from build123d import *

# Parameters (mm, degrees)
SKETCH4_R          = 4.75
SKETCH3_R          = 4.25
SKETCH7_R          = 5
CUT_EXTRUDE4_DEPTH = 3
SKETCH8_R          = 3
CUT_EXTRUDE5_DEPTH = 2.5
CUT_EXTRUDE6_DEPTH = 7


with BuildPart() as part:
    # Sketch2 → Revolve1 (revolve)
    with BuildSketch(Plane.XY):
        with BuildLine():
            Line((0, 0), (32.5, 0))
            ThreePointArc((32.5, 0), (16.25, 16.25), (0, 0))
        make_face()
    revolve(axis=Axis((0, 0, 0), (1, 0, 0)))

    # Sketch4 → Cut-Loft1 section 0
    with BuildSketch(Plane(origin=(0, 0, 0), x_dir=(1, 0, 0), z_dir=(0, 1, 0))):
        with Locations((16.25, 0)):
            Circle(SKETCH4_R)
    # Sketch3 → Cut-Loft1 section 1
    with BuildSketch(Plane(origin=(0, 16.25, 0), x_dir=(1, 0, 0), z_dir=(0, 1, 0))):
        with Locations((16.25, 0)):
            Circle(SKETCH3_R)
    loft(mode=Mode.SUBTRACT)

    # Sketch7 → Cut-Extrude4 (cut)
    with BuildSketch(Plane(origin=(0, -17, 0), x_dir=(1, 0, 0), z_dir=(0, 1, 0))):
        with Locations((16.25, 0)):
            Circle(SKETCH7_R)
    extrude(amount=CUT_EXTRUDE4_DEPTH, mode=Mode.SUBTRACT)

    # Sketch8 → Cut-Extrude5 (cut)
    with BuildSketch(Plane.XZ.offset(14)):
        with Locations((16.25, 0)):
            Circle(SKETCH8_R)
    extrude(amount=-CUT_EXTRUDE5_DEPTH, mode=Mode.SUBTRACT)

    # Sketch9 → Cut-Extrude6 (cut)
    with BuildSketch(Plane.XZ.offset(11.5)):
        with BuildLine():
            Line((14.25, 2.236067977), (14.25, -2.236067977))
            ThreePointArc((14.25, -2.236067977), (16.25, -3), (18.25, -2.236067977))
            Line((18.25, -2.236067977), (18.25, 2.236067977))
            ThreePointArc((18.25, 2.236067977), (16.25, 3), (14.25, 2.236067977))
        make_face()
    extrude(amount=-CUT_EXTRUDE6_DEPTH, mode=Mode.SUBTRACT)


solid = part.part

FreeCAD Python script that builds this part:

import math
import FreeCAD as App
import Part
import Sketcher
from FreeCAD import Vector

doc = App.newDocument("Part")
params = doc.addObject("Spreadsheet::Sheet", "Params")
for row, (alias, value) in enumerate([
    ("sketch1_radius", "16.25 mm"),
    ("revolution_angle", "360 deg"),
    ("sketch2_diameter", "9.5 mm"),
    ("sketch3_diameter", "8.5 mm"),
    ("sketch4_diameter", "10 mm"),
    ("pocket1_length", "3 mm"),
    ("sketch5_diameter", "6 mm"),
    ("pocket2_length", "2.5 mm"),
    ("sketch6_radius", "3 mm"),
    ("pocket3_length", "7 mm"),
], start=1):
    params.set(f"A{row}", alias)
    params.set(f"B{row}", "=" + value)
    params.setAlias(f"B{row}", alias)

body = doc.addObject("PartDesign::Body", "Body")

# Sketch on XY plane
sketch1 = body.newObject("Sketcher::SketchObject", "Sketch")
sketch1.AttachmentSupport = (doc.getObject("XY_Plane"), [""])
sketch1.MapMode = "FlatFace"
sketch1.addGeometry(Part.LineSegment(Vector(0, 0, 0), Vector(32.5, 0, 0)), False)
sketch1.addGeometry(Part.ArcOfCircle(Part.Circle(Vector(16.25, 0, 0), Vector(0, 0, 1), 16.25), math.radians(0), math.radians(180)), False)
sketch1.addConstraint(Sketcher.Constraint("Coincident", 0, 1, 1, 2))
sketch1.addConstraint(Sketcher.Constraint("Coincident", 1, 1, 0, 2))
sketch1.addConstraint(Sketcher.Constraint("Horizontal", 0))
sketch1.addConstraint(Sketcher.Constraint("Coincident", 0, 1, -1, 1))
sketch1.addConstraint(Sketcher.Constraint("PointOnObject", 1, 3, -1))
sketch1.addConstraint(Sketcher.Constraint("Radius", 1, 16.25))
sketch1.setExpression("Constraints[5]", "Params.sketch1_radius")
revolution = body.newObject("PartDesign::Revolution", "Revolution")
revolution.Profile = sketch1
revolution.ReferenceAxis = (sketch1, ["H_Axis"])
revolution.setExpression("Angle", "Params.revolution_angle")

# Sketch on XZ plane
sketch2 = body.newObject("Sketcher::SketchObject", "Sketch001")
sketch2.AttachmentSupport = (doc.getObject("XZ_Plane"), [""])
sketch2.MapMode = "FlatFace"
sketch2.addGeometry(Part.Circle(Vector(16.25, 0, 0), Vector(0, 0, 1), 4.75), False)
sketch2.addConstraint(Sketcher.Constraint("PointOnObject", 0, 3, -1))
sketch2.addConstraint(Sketcher.Constraint("Diameter", 0, 9.5))
sketch2.addConstraint(Sketcher.Constraint("DistanceX", -1, 1, 0, 3, 16.25))
sketch2.setExpression("Constraints[1]", "Params.sketch2_diameter")

# Sketch on XZ plane
sketch3 = body.newObject("Sketcher::SketchObject", "Sketch002")
sketch3.AttachmentSupport = (doc.getObject("XZ_Plane"), [""])
sketch3.MapMode = "FlatFace"
sketch3.AttachmentOffset = App.Placement(Vector(0, 0, -16.25), App.Rotation())
sketch3.addGeometry(Part.Circle(Vector(16.25, 0, 0), Vector(0, 0, 1), 4.25), False)
sketch3.addConstraint(Sketcher.Constraint("PointOnObject", 0, 3, -1))
sketch3.addConstraint(Sketcher.Constraint("Diameter", 0, 8.5))
sketch3.addConstraint(Sketcher.Constraint("DistanceX", -1, 1, 0, 3, 16.25))
sketch3.setExpression("Constraints[1]", "Params.sketch3_diameter")

subtractiveloft = body.newObject("PartDesign::SubtractiveLoft", "SubtractiveLoft")
subtractiveloft.Profile = sketch2
subtractiveloft.Sections = [sketch3]

# Sketch on XZ plane
sketch4 = body.newObject("Sketcher::SketchObject", "Sketch003")
sketch4.AttachmentSupport = (doc.getObject("XZ_Plane"), [""])
sketch4.MapMode = "FlatFace"
sketch4.AttachmentOffset = App.Placement(Vector(0, 0, 17), App.Rotation())
sketch4.addGeometry(Part.Circle(Vector(16.25, 0, 0), Vector(0, 0, 1), 5), False)
sketch4.addConstraint(Sketcher.Constraint("PointOnObject", 0, 3, -1))
sketch4.addConstraint(Sketcher.Constraint("Diameter", 0, 10.0))
sketch4.addConstraint(Sketcher.Constraint("DistanceX", -1, 1, 0, 3, 16.25))
sketch4.setExpression("Constraints[1]", "Params.sketch4_diameter")
pocket1 = body.newObject("PartDesign::Pocket", "Pocket")
pocket1.Profile = sketch4
pocket1.setExpression("Length", "Params.pocket1_length")

# Sketch on XZ plane
sketch5 = body.newObject("Sketcher::SketchObject", "Sketch004")
sketch5.AttachmentSupport = (doc.getObject("XZ_Plane"), [""])
sketch5.MapMode = "FlatFace"
sketch5.AttachmentOffset = App.Placement(Vector(0, 0, 14), App.Rotation())
sketch5.addGeometry(Part.Circle(Vector(16.25, 0, 0), Vector(0, 0, 1), 3), False)
sketch5.addConstraint(Sketcher.Constraint("PointOnObject", 0, 3, -1))
sketch5.addConstraint(Sketcher.Constraint("Diameter", 0, 6.0))
sketch5.addConstraint(Sketcher.Constraint("DistanceX", -1, 1, 0, 3, 16.25))
sketch5.setExpression("Constraints[1]", "Params.sketch5_diameter")
pocket2 = body.newObject("PartDesign::Pocket", "Pocket001")
pocket2.Profile = sketch5
pocket2.setExpression("Length", "Params.pocket2_length")

# Sketch on XZ plane
sketch6 = body.newObject("Sketcher::SketchObject", "Sketch005")
sketch6.AttachmentSupport = (doc.getObject("XZ_Plane"), [""])
sketch6.MapMode = "FlatFace"
sketch6.AttachmentOffset = App.Placement(Vector(0, 0, 11.5), App.Rotation())
sketch6.addGeometry(Part.LineSegment(Vector(14.25, 2.236068, 0), Vector(14.25, -2.236068, 0)), False)
sketch6.addGeometry(Part.ArcOfCircle(Part.Circle(Vector(16.25, 0, 0), Vector(0, 0, 1), 3), math.radians(-131.810315), math.radians(-48.189685)), False)
sketch6.addGeometry(Part.LineSegment(Vector(18.25, -2.236068, 0), Vector(18.25, 2.236068, 0)), False)
sketch6.addGeometry(Part.ArcOfCircle(Part.Circle(Vector(16.25, 0, 0), Vector(0, 0, 1), 3), math.radians(48.189685), math.radians(131.810315)), False)
sketch6.addConstraint(Sketcher.Constraint("Coincident", 0, 2, 1, 1))
sketch6.addConstraint(Sketcher.Constraint("Coincident", 1, 2, 2, 1))
sketch6.addConstraint(Sketcher.Constraint("Coincident", 2, 2, 3, 1))
sketch6.addConstraint(Sketcher.Constraint("Coincident", 3, 2, 0, 1))
sketch6.addConstraint(Sketcher.Constraint("Vertical", 0))
sketch6.addConstraint(Sketcher.Constraint("Vertical", 2))
sketch6.addConstraint(Sketcher.Constraint("Coincident", 3, 3, 1, 3))
sketch6.addConstraint(Sketcher.Constraint("Equal", 1, 3))
sketch6.addConstraint(Sketcher.Constraint("PointOnObject", 1, 3, -1))
sketch6.addConstraint(Sketcher.Constraint("Horizontal", 0, 2, 1, 2))
sketch6.addConstraint(Sketcher.Constraint("Radius", 1, 3.0))
sketch6.addConstraint(Sketcher.Constraint("DistanceX", 0, 2, 1, 3, 2.0))
sketch6.addConstraint(Sketcher.Constraint("DistanceX", -1, 1, 1, 3, 16.25))
sketch6.setExpression("Constraints[10]", "Params.sketch6_radius")
pocket3 = body.newObject("PartDesign::Pocket", "Pocket002")
pocket3.Profile = sketch6
pocket3.setExpression("Length", "Params.pocket3_length")

doc.recompute()
